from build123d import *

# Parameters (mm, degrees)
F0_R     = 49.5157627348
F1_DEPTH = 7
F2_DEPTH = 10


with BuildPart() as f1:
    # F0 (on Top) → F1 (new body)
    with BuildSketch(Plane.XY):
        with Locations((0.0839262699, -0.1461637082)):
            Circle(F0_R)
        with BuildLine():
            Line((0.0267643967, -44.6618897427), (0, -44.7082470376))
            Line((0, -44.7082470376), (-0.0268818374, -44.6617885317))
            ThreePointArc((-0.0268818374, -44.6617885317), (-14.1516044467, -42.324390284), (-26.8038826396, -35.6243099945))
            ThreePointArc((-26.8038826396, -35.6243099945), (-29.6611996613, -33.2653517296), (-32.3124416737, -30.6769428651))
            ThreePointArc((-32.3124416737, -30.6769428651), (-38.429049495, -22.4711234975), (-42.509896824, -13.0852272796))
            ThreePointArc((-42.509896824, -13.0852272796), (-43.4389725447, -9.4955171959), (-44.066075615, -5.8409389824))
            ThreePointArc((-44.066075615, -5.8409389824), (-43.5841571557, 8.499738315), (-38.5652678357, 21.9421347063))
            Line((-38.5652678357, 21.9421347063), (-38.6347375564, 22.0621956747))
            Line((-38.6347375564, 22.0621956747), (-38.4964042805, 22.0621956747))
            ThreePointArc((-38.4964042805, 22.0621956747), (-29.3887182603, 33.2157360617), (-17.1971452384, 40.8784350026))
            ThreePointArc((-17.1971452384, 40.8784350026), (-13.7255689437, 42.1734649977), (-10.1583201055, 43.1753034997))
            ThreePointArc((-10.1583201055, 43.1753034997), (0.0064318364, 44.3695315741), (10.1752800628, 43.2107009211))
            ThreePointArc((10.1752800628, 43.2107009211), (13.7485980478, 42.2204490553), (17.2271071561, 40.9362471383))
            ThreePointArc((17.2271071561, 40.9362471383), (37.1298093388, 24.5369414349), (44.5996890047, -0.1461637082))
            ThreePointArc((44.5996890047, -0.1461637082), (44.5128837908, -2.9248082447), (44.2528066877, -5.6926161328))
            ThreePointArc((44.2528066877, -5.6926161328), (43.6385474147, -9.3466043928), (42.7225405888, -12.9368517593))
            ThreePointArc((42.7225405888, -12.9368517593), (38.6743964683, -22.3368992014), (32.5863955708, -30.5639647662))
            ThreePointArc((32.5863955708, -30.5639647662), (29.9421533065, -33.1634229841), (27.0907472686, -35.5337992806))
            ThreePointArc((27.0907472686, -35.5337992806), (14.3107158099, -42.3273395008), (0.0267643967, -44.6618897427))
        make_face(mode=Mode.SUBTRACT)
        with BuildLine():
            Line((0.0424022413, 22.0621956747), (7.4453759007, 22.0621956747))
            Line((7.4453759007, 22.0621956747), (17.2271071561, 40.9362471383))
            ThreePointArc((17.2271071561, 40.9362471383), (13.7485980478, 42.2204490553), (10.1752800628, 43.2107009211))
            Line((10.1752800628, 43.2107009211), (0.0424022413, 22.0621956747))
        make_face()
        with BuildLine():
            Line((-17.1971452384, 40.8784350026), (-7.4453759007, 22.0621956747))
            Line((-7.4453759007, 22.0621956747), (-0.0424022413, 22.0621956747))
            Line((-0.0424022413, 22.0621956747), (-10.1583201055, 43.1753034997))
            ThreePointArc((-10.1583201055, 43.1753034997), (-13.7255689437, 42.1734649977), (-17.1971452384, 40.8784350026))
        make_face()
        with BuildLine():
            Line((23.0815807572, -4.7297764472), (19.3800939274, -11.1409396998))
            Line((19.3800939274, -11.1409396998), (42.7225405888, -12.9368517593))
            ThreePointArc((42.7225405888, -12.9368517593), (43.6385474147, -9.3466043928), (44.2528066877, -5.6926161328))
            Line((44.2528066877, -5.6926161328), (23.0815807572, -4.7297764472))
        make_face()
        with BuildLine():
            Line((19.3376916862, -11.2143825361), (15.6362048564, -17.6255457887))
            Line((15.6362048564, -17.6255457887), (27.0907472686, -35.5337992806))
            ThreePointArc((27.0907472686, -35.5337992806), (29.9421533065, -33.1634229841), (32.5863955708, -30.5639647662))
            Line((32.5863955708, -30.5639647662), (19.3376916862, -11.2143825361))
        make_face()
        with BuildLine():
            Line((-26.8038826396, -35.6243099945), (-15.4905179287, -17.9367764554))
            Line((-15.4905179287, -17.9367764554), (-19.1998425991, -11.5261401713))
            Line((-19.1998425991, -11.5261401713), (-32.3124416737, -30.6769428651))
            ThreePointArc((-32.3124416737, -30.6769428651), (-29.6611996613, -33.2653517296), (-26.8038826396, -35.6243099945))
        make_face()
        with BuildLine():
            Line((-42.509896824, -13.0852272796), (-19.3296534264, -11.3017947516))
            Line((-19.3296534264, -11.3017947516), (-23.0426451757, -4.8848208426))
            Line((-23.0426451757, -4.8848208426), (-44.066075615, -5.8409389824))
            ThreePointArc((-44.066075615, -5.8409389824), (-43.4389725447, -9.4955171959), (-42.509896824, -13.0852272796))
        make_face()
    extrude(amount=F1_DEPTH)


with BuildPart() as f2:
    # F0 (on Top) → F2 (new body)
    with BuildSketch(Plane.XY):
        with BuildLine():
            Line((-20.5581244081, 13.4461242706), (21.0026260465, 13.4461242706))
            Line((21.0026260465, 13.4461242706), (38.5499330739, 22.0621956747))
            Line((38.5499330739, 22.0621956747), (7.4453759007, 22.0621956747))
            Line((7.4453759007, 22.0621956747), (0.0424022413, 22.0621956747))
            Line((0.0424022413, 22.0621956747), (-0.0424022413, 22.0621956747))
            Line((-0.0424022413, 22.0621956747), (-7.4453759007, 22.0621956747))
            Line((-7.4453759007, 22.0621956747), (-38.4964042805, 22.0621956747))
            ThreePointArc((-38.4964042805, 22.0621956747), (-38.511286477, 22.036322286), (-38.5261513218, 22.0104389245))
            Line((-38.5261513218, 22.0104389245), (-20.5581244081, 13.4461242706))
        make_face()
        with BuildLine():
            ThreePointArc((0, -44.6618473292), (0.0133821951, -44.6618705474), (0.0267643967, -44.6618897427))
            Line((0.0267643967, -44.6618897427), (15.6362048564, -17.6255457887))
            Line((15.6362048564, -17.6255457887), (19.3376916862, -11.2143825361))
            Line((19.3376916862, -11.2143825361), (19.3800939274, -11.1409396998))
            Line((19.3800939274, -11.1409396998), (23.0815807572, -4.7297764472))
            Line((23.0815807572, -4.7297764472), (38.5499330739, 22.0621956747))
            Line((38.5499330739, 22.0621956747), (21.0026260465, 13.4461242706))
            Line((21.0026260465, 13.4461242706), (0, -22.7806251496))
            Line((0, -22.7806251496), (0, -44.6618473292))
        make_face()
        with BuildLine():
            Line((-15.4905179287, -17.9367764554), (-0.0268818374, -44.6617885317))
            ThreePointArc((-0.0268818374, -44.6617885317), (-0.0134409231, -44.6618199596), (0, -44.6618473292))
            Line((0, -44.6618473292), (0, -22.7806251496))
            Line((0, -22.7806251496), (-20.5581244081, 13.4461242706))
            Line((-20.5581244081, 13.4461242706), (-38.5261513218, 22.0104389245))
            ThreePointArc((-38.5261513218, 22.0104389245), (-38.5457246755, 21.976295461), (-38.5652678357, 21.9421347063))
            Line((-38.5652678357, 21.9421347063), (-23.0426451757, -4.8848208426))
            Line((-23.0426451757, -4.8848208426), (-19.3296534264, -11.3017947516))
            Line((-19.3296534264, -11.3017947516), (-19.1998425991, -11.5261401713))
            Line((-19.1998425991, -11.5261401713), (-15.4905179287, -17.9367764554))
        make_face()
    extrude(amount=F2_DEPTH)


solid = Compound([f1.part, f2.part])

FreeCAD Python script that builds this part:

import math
import FreeCAD as App
import Part
import Sketcher
from FreeCAD import Vector
Q = App.Units.Quantity


def add_polygon(sketch, points):
    """Adds a closed chain of lines whose ends are joined by coincident constraints."""
    first, n = sketch.GeometryCount, len(points)
    for a, b in zip(points, points[1:] + points[:1]):
        sketch.addGeometry(Part.LineSegment(App.Vector(*a, 0), App.Vector(*b, 0)), False)
    for i in range(n):
        sketch.addConstraint(Sketcher.Constraint("Coincident", first + i, 2, first + (i + 1) % n, 1))

doc = App.newDocument("Part")
body = doc.addObject("PartDesign::Body", "Body")

# Sketch on XY plane
sketch1 = body.newObject("Sketcher::SketchObject", "Sketch")
sketch1.AttachmentSupport = (doc.getObject("XY_Plane"), [""])
sketch1.MapMode = "FlatFace"
sketch1.addGeometry(Part.Circle(Vector(0.083926, -0.146164, 0), Vector(0, 0, 1), 49.515763), False)
sketch1.addGeometry(Part.ArcOfCircle(Part.Circle(Vector(0.083926, -0.146164, 0), Vector(0, 0, 1), 44.515763), math.radians(-90.073572), math.radians(-52.650173)), False)
sketch1.addGeometry(Part.LineSegment(Vector(0.026764, -44.66189, 0), Vector(0, -44.708247, 0)), False)
sketch1.addGeometry(Part.LineSegment(Vector(0, -44.708247, 0), Vector(-0.026882, -44.661789, 0)), False)
sketch1.addGeometry(Part.ArcOfCircle(Part.Circle(Vector(0.083926, -0.146164, 0), Vector(0, 0, 1), 44.515763), math.radians(-127.157382), math.radians(-90.14262)), False)
sketch1.addGeometry(Part.LineSegment(Vector(-26.803883, -35.62431, 0), Vector(-15.490518, -17.936776, 0)), False)
sketch1.addGeometry(Part.LineSegment(Vector(-15.490518, -17.936776, 0), Vector(-19.199843, -11.52614, 0)), False)
sketch1.addGeometry(Part.LineSegment(Vector(-19.199843, -11.52614, 0), Vector(-32.312442, -30.676943, 0)), False)
sketch1.addGeometry(Part.ArcOfCircle(Part.Circle(Vector(0.083926, -0.146164, 0), Vector(0, 0, 1), 44.515763), math.radians(-163.102376), math.radians(-136.698139)), False)
sketch1.addGeometry(Part.LineSegment(Vector(-42.509897, -13.085227, 0), Vector(-19.329653, -11.301795, 0)), False)
sketch1.addGeometry(Part.LineSegment(Vector(-19.329653, -11.301795, 0), Vector(-23.042645, -4.884821, 0)), False)
sketch1.addGeometry(Part.LineSegment(Vector(-23.042645, -4.884821, 0), Vector(-44.066076, -5.840939, 0)), False)
sketch1.addGeometry(Part.ArcOfCircle(Part.Circle(Vector(0.083926, -0.146164, 0), Vector(0, 0, 1), 44.515763), math.radians(150.251716), math.radians(187.349827)), False)
sketch1.addGeometry(Part.LineSegment(Vector(-38.565268, 21.942135, 0), Vector(-38.634738, 22.062196, 0)), False)
sketch1.addGeometry(Part.LineSegment(Vector(-38.634738, 22.062196, 0), Vector(-38.496404, 22.062196, 0)), False)
sketch1.addGeometry(Part.ArcOfCircle(Part.Circle(Vector(0.083926, -0.146164, 0), Vector(0, 0, 1), 44.515763), math.radians(112.842618), math.radians(150.073572)), False)
sketch1.addGeometry(Part.LineSegment(Vector(-17.197145, 40.878435, 0), Vector(-7.445376, 22.062196, 0)), False)
sketch1.addGeometry(Part.LineSegment(Vector(-7.445376, 22.062196, 0), Vector(-0.042402, 22.062196, 0)), False)
sketch1.addGeometry(Part.LineSegment(Vector(-0.042402, 22.062196, 0), Vector(-10.15832, 43.175303, 0)), False)
sketch1.addGeometry(Part.ArcOfCircle(Part.Circle(Vector(0.083926, -0.146164, 0), Vector(0, 0, 1), 44.515763), math.radians(76.897624), math.radians(103.301861)), False)
sketch1.addGeometry(Part.LineSegment(Vector(10.17528, 43.210701, 0), Vector(0.042402, 22.062196, 0)), False)
sketch1.addGeometry(Part.LineSegment(Vector(0.042402, 22.062196, 0), Vector(7.445376, 22.062196, 0)), False)
sketch1.addGeometry(Part.LineSegment(Vector(7.445376, 22.062196, 0), Vector(17.227107, 40.936247, 0)), False)
sketch1.addGeometry(Part.ArcOfCircle(Part.Circle(Vector(0.083926, -0.146164, 0), Vector(0, 0, 1), 44.515763), math.radians(0), math.radians(67.349827)), False)
sketch1.addGeometry(Part.ArcOfCircle(Part.Circle(Vector(0.083926, -0.146164, 0), Vector(0, 0, 1), 44.515763), math.radians(-7.157382), math.radians(0)), False)
sketch1.addGeometry(Part.LineSegment(Vector(44.252807, -5.692616, 0), Vector(23.081581, -4.729776, 0)), False)
sketch1.addGeometry(Part.LineSegment(Vector(23.081581, -4.729776, 0), Vector(19.380094, -11.14094, 0)), False)
sketch1.addGeometry(Part.LineSegment(Vector(19.380094, -11.14094, 0), Vector(42.722541, -12.936852, 0)), False)
sketch1.addGeometry(Part.ArcOfCircle(Part.Circle(Vector(0.083926, -0.146164, 0), Vector(0, 0, 1), 44.515763), math.radians(-43.102376), math.radians(-16.698139)), False)
sketch1.addGeometry(Part.LineSegment(Vector(32.586396, -30.563965, 0), Vector(19.337692, -11.214383, 0)), False)
sketch1.addGeometry(Part.LineSegment(Vector(19.337692, -11.214383, 0), Vector(15.636205, -17.625546, 0)), False)
sketch1.addGeometry(Part.LineSegment(Vector(15.636205, -17.625546, 0), Vector(27.090747, -35.533799, 0)), False)
sketch1.addConstraint(Sketcher.Constraint("Coincident", 1, 1, 2, 1))
sketch1.addConstraint(Sketcher.Constraint("Coincident", 2, 2, 3, 1))
sketch1.addConstraint(Sketcher.Constraint("Coincident", 3, 2, 4, 2))
sketch1.addConstraint(Sketcher.Constraint("Coincident", 4, 1, 5, 1))
sketch1.addConstraint(Sketcher.Constraint("Coincident", 5, 2, 6, 1))
sketch1.addConstraint(Sketcher.Constraint("Coincident", 6, 2, 7, 1))
sketch1.addConstraint(Sketcher.Constraint("Coincident", 7, 2, 8, 2))
sketch1.addConstraint(Sketcher.Constraint("Coincident", 8, 1, 9, 1))
sketch1.addConstraint(Sketcher.Constraint("Coincident", 9, 2, 10, 1))
sketch1.addConstraint(Sketcher.Constraint("Coincident", 10, 2, 11, 1))
sketch1.addConstraint(Sketcher.Constraint("Coincident", 11, 2, 12, 2))
sketch1.addConstraint(Sketcher.Constraint("Coincident", 12, 1, 13, 1))
sketch1.addConstraint(Sketcher.Constraint("Coincident", 13, 2, 14, 1))
sketch1.addConstraint(Sketcher.Constraint("Coincident", 14, 2, 15, 2))
sketch1.addConstraint(Sketcher.Constraint("Coincident", 15, 1, 16, 1))
sketch1.addConstraint(Sketcher.Constraint("Coincident", 16, 2, 17, 1))
sketch1.addConstraint(Sketcher.Constraint("Coincident", 17, 2, 18, 1))
sketch1.addConstraint(Sketcher.Constraint("Coincident", 18, 2, 19, 2))
sketch1.addConstraint(Sketcher.Constraint("Coincident", 19, 1, 20, 1))
sketch1.addConstraint(Sketcher.Constraint("Coincident", 20, 2, 21, 1))
sketch1.addConstraint(Sketcher.Constraint("Coincident", 21, 2, 22, 1))
sketch1.addConstraint(Sketcher.Constraint("Coincident", 22, 2, 23, 2))
sketch1.addConstraint(Sketcher.Constraint("Tangent", 23, 1, 24, 2))
sketch1.addConstraint(Sketcher.Constraint("Coincident", 24, 1, 25, 1))
sketch1.addConstraint(Sketcher.Constraint("Coincident", 25, 2, 26, 1))
sketch1.addConstraint(Sketcher.Constraint("Coincident", 26, 2, 27, 1))
sketch1.addConstraint(Sketcher.Constraint("Coincident", 27, 2, 28, 2))
sketch1.addConstraint(Sketcher.Constraint("Coincident", 28, 1, 29, 1))
sketch1.addConstraint(Sketcher.Constraint("Coincident", 29, 2, 30, 1))
sketch1.addConstraint(Sketcher.Constraint("Coincident", 30, 2, 31, 1))
sketch1.addConstraint(Sketcher.Constraint("Coincident", 31, 2, 1, 2))
sketch1.addConstraint(Sketcher.Constraint("Horizontal", 14))
sketch1.addConstraint(Sketcher.Constraint("Horizontal", 17))
sketch1.addConstraint(Sketcher.Constraint("Horizontal", 21))
sketch1.addConstraint(Sketcher.Constraint("Coincident", 1, 3, 0, 3))
sketch1.addConstraint(Sketcher.Constraint("Coincident", 4, 3, 0, 3))
sketch1.addConstraint(Sketcher.Constraint("Coincident", 8, 3, 0, 3))
sketch1.addConstraint(Sketcher.Constraint("Coincident", 12, 3, 0, 3))
sketch1.addConstraint(Sketcher.Constraint("Coincident", 15, 3, 0, 3))
sketch1.addConstraint(Sketcher.Constraint("Coincident", 19, 3, 0, 3))
sketch1.addConstraint(Sketcher.Constraint("Coincident", 23, 3, 0, 3))
sketch1.addConstraint(Sketcher.Constraint("Coincident", 28, 3, 0, 3))
sketch1.addConstraint(Sketcher.Constraint("Equal", 1, 4))
sketch1.addConstraint(Sketcher.Constraint("Equal", 4, 8))
sketch1.addConstraint(Sketcher.Constraint("Equal", 8, 12))
sketch1.addConstraint(Sketcher.Constraint("Equal", 12, 15))
sketch1.addConstraint(Sketcher.Constraint("Equal", 15, 19))
sketch1.addConstraint(Sketcher.Constraint("Equal", 19, 23))
sketch1.addConstraint(Sketcher.Constraint("Equal", 23, 24))
sketch1.addConstraint(Sketcher.Constraint("Equal", 24, 28))
sketch1.addConstraint(Sketcher.Constraint("Symmetric", 17, 2, 20, 2, -2))
sketch1.addConstraint(Sketcher.Constraint("PointOnObject", 2, 2, -2))
sketch1.addConstraint(Sketcher.Constraint("Parallel", 3, 6))
sketch1.addConstraint(Sketcher.Constraint("Parallel", 6, 10))
sketch1.addConstraint(Sketcher.Constraint("Parallel", 10, 13))
sketch1.addConstraint(Sketcher.Constraint("Parallel", 2, 26))
sketch1.addConstraint(Sketcher.Constraint("Parallel", 26, 30))
sketch1.addConstraint(Sketcher.Constraint("Horizontal", 14, 2, 16, 2))
sketch1.addConstraint(Sketcher.Constraint("Horizontal", 28, 3, 23, 1))
sketch1.addConstraint(Sketcher.Constraint("Equal", 17, 21))
sketch1.addConstraint(Sketcher.Constraint("Equal", 16, 25))
sketch1.addConstraint(Sketcher.Constraint("Equal", 18, 27))
sketch1.addConstraint(Sketcher.Constraint("Equal", 20, 29))
sketch1.addConstraint(Sketcher.Constraint("Equal", 26, 30))
sketch1.addConstraint(Sketcher.Constraint("Equal", 22, 31))
sketch1.addConstraint(Sketcher.Constraint("Angle", 26, Q("-120 deg")))
sketch1.addConstraint(Sketcher.Constraint("Diameter", 0, Q("99.031525 mm")))
sketch1.addConstraint(Sketcher.Constraint("Radius", 1, Q("44.515763 mm")))
sketch1.addConstraint(Sketcher.Constraint("DistanceX", 4, 1, 3, 2, Q("26.777001 mm")))
sketch1.addConstraint(Sketcher.Constraint("DistanceY", -1, 1, 19, 1, Q("43.210701 mm")))
sketch1.addConstraint(Sketcher.Constraint("DistanceY", 31, 2, -1, 1, Q("35.533799 mm")))
sketch1.addConstraint(Sketcher.Constraint("DistanceX", 7, 2, 6, 2, Q("13.112599 mm")))
sketch1.addConstraint(Sketcher.Constraint("DistanceY", 6, 2, 11, 2, Q("5.685201 mm")))
sketch1.addConstraint(Sketcher.Constraint("DistanceY", 12, 1, 15, 1, Q("18.9363 mm")))
sketch1.addConstraint(Sketcher.Constraint("DistanceY", 24, 3, 15, 1, Q("41.024599 mm")))
sketch1.addConstraint(Sketcher.Constraint("DistanceX", 18, 2, 19, 1, Q("20.3336 mm")))
sketch1.addConstraint(Sketcher.Constraint("DistanceX", 26, 2, 28, 1, Q("13.206302 mm")))
sketch1.addConstraint(Sketcher.Constraint("DistanceY", 28, 1, 23, 1, Q("30.417801 mm")))
sketch1.addConstraint(Sketcher.Constraint("Distance", 2, Q("0.053529 mm")))
sketch1.addConstraint(Sketcher.Constraint("Distance", 6, Q("7.40644 mm")))
sketch1.addConstraint(Sketcher.Constraint("Distance", 7, Q("23.209772 mm")))
sketch1.addConstraint(Sketcher.Constraint("Distance", 9, Q("23.248749 mm")))
sketch1.addConstraint(Sketcher.Constraint("Distance", 10, Q("7.413762 mm")))
sketch1.addConstraint(Sketcher.Constraint("Distance", 11, Q("21.045161 mm")))
sketch1.addConstraint(Sketcher.Constraint("Distance", 13, Q("0.138711 mm")))
sketch1.addConstraint(Sketcher.Constraint("Distance", 16, Q("21.193109 mm")))
sketch1.addConstraint(Sketcher.Constraint("Distance", 18, Q("23.411431 mm")))
sketch1.addConstraint(Sketcher.Constraint("DistanceX", 17, 1, 17, 2, Q("7.402974 mm")))
sketch1.addConstraint(Sketcher.Constraint("DistanceY", 4, 1, -1, 1, Q("35.62431 mm")))
sketch1.addConstraint(Sketcher.Constraint("DistanceY", 6, 2, -1, 1, Q("11.52614 mm")))
sketch1.addConstraint(Sketcher.Constraint("DistanceY", 10, 2, -1, 1, Q("4.884821 mm")))
sketch1.addConstraint(Sketcher.Constraint("DistanceX", -1, 1, 25, 2, Q("23.081581 mm")))
sketch1.addConstraint(Sketcher.Constraint("DistanceY", 26, 2, -1, 1, Q("11.14094 mm")))
sketch1.addConstraint(Sketcher.Constraint("DistanceX", -1, 1, 29, 2, Q("19.337692 mm")))
sketch1.addConstraint(Sketcher.Constraint("DistanceX", 8, 1, 5, 2, Q("27.019379 mm")))
pad1 = body.newObject("PartDesign::Pad", "Pad")
pad1.Profile = sketch1
pad1.Length = 7
body2 = doc.addObject("PartDesign::Body", "Body001")

# Sketch on XY plane
sketch2 = body2.newObject("Sketcher::SketchObject", "Sketch001")
sketch2.AttachmentSupport = (doc.getObject("XY_Plane001"), [""])
sketch2.MapMode = "FlatFace"
sketch2.addGeometry(Part.ArcOfCircle(Part.Circle(Vector(0.083927, -0.145917, 0), Vector(0, 0, 1), 44.516009), math.radians(-90.10802), math.radians(-90.073572)), False)  # 0
sketch2.addGeometry(Part.LineSegment(Vector(0.026764, -44.66189, 0), Vector(15.636205, -17.625546, 0)), False)  # 1
sketch2.addGeometry(Part.LineSegment(Vector(15.636205, -17.625546, 0), Vector(19.337692, -11.214383, 0)), False)  # 2
sketch2.addGeometry(Part.LineSegment(Vector(19.337692, -11.214383, 0), Vector(19.380094, -11.14094, 0)), False)  # 3
sketch2.addGeometry(Part.LineSegment(Vector(19.380094, -11.14094, 0), Vector(23.081581, -4.729776, 0)), False)  # 4
sketch2.addGeometry(Part.LineSegment(Vector(23.081581, -4.729776, 0), Vector(38.549933, 22.062196, 0)), False)  # 5
sketch2.addGeometry(Part.LineSegment(Vector(38.549933, 22.062196, 0), Vector(-38.496404, 22.062196, 0)), False)  # 6
sketch2.addGeometry(Part.ArcOfCircle(Part.Circle(Vector(0.083838, -0.146113, 0), Vector(0, 0, 1), 44.515661), math.radians(150.073572), math.radians(150.150407)), False)  # 7
sketch2.addGeometry(Part.ArcOfCircle(Part.Circle(Vector(0.084027, -0.146221, 0), Vector(0, 0, 1), 44.515879), math.radians(150.150407), math.radians(150.251716)), False)  # 8
sketch2.addGeometry(Part.LineSegment(Vector(-38.565268, 21.942135, 0), Vector(-23.042645, -4.884821, 0)), False)  # 9
sketch2.addGeometry(Part.LineSegment(Vector(-23.042645, -4.884821, 0), Vector(-19.329653, -11.301795, 0)), False)  # 10
sketch2.addGeometry(Part.LineSegment(Vector(-19.329653, -11.301795, 0), Vector(-19.199843, -11.52614, 0)), False)  # 11
sketch2.addGeometry(Part.LineSegment(Vector(-19.199843, -11.52614, 0), Vector(-15.490518, -17.936776, 0)), False)  # 12
sketch2.addGeometry(Part.LineSegment(Vector(-15.490518, -17.936776, 0), Vector(-0.026882, -44.661789, 0)), False)  # 13
sketch2.addGeometry(Part.ArcOfCircle(Part.Circle(Vector(0.083927, -0.14606, 0), Vector(0, 0, 1), 44.515866), math.radians(-90.14262), math.radians(-90.108021)), False)  # 14
add_polygon(sketch2, [(-20.558124, 13.446124), (21.002626, 13.446124), (0, -22.780625)])  # lines 15-17
sketch2.addConstraint(Sketcher.Constraint("Coincident", 0, 2, 1, 1))
sketch2.addConstraint(Sketcher.Constraint("Coincident", 1, 2, 2, 1))
sketch2.addConstraint(Sketcher.Constraint("Coincident", 2, 2, 3, 1))
sketch2.addConstraint(Sketcher.Constraint("Coincident", 3, 2, 4, 1))
sketch2.addConstraint(Sketcher.Constraint("Coincident", 4, 2, 5, 1))
sketch2.addConstraint(Sketcher.Constraint("Coincident", 5, 2, 6, 1))
sketch2.addConstraint(Sketcher.Constraint("Coincident", 6, 2, 7, 1))
sketch2.addConstraint(Sketcher.Constraint("Tangent", 7, 2, 8, 1))
sketch2.addConstraint(Sketcher.Constraint("Coincident", 8, 2, 9, 1))
sketch2.addConstraint(Sketcher.Constraint("Coincident", 9, 2, 10, 1))
sketch2.addConstraint(Sketcher.Constraint("Coincident", 10, 2, 11, 1))
sketch2.addConstraint(Sketcher.Constraint("Coincident", 11, 2, 12, 1))
sketch2.addConstraint(Sketcher.Constraint("Coincident", 12, 2, 13, 1))
sketch2.addConstraint(Sketcher.Constraint("Coincident", 13, 2, 14, 1))
sketch2.addConstraint(Sketcher.Constraint("Tangent", 14, 2, 0, 1))
sketch2.addConstraint(Sketcher.Constraint("Horizontal", 6))
sketch2.addConstraint(Sketcher.Constraint("Horizontal", 15))
sketch2.addConstraint(Sketcher.Constraint("PointOnObject", 14, 2, -2))
sketch2.addConstraint(Sketcher.Constraint("PointOnObject", 16, 2, -2))
sketch2.addConstraint(Sketcher.Constraint("Parallel", 1, 2))
sketch2.addConstraint(Sketcher.Constraint("Parallel", 2, 3))
sketch2.addConstraint(Sketcher.Constraint("Parallel", 3, 4))
sketch2.addConstraint(Sketcher.Constraint("Parallel", 4, 5))
sketch2.addConstraint(Sketcher.Constraint("Parallel", 9, 10))
sketch2.addConstraint(Sketcher.Constraint("Parallel", 10, 11))
sketch2.addConstraint(Sketcher.Constraint("Parallel", 11, 12))
sketch2.addConstraint(Sketcher.Constraint("Parallel", 12, 13))
sketch2.addConstraint(Sketcher.Constraint("Equal", 2, 4))
sketch2.addConstraint(Sketcher.Constraint("Angle", 1, Q("60 deg")))
sketch2.addConstraint(Sketcher.Constraint("Radius", 0, Q("44.516009 mm")))
sketch2.addConstraint(Sketcher.Constraint("Radius", 7, Q("44.515661 mm")))
sketch2.addConstraint(Sketcher.Constraint("Radius", 8, Q("44.515879 mm")))
sketch2.addConstraint(Sketcher.Constraint("Radius", 14, Q("44.515866 mm")))
sketch2.addConstraint(Sketcher.Constraint("DistanceX", 15, 1, 15, 2, Q("41.56075 mm")))
sketch2.addConstraint(Sketcher.Constraint("DistanceX", 0, 3, 8, 3, Q("0.000101 mm")))
sketch2.addConstraint(Sketcher.Constraint("DistanceY", 14, 3, 7, 2, Q("22.156499 mm")))
sketch2.addConstraint(Sketcher.Constraint("DistanceY", 9, 2, 8, 3, Q("4.738599 mm")))
sketch2.addConstraint(Sketcher.Constraint("DistanceY", 14, 2, 1, 2, Q("27.036302 mm")))
sketch2.addConstraint(Sketcher.Constraint("DistanceY", 4, 2, 15, 2, Q("18.175901 mm")))
sketch2.addConstraint(Sketcher.Constraint("DistanceX", 0, 3, 15, 2, Q("20.918699 mm")))
sketch2.addConstraint(Sketcher.Constraint("Distance", 9, Q("30.99415 mm")))
sketch2.addConstraint(Sketcher.Constraint("Distance", 10, Q("7.413762 mm")))
sketch2.addConstraint(Sketcher.Constraint("Distance", 12, Q("7.40644 mm")))
sketch2.addConstraint(Sketcher.Constraint("Distance", 13, Q("30.876371 mm")))
sketch2.addConstraint(Sketcher.Constraint("DistanceX", 6, 2, 6, 1, Q("77.046337 mm")))
sketch2.addConstraint(Sketcher.Constraint("DistanceX", -1, 1, 7, 3, Q("0.083838 mm")))
sketch2.addConstraint(Sketcher.Constraint("DistanceY", 8, 3, -1, 1, Q("0.146221 mm")))
sketch2.addConstraint(Sketcher.Constraint("DistanceY", 14, 3, -1, 1, Q("0.14606 mm")))
sketch2.addConstraint(Sketcher.Constraint("DistanceX", -1, 1, 2, 2, Q("19.337692 mm")))
sketch2.addConstraint(Sketcher.Constraint("DistanceY", 3, 2, -1, 1, Q("11.14094 mm")))
sketch2.addConstraint(Sketcher.Constraint("DistanceY", 11, 2, -1, 1, Q("11.52614 mm")))
sketch2.addConstraint(Sketcher.Constraint("DistanceX", 3, 2, 5, 2, Q("19.169839 mm")))
sketch2.addConstraint(Sketcher.Constraint("DistanceY", 16, 2, 12, 2, Q("4.843849 mm")))
pad2 = body2.newObject("PartDesign::Pad", "Pad001")
pad2.Profile = sketch2
pad2.Length = 10

doc.recompute()
